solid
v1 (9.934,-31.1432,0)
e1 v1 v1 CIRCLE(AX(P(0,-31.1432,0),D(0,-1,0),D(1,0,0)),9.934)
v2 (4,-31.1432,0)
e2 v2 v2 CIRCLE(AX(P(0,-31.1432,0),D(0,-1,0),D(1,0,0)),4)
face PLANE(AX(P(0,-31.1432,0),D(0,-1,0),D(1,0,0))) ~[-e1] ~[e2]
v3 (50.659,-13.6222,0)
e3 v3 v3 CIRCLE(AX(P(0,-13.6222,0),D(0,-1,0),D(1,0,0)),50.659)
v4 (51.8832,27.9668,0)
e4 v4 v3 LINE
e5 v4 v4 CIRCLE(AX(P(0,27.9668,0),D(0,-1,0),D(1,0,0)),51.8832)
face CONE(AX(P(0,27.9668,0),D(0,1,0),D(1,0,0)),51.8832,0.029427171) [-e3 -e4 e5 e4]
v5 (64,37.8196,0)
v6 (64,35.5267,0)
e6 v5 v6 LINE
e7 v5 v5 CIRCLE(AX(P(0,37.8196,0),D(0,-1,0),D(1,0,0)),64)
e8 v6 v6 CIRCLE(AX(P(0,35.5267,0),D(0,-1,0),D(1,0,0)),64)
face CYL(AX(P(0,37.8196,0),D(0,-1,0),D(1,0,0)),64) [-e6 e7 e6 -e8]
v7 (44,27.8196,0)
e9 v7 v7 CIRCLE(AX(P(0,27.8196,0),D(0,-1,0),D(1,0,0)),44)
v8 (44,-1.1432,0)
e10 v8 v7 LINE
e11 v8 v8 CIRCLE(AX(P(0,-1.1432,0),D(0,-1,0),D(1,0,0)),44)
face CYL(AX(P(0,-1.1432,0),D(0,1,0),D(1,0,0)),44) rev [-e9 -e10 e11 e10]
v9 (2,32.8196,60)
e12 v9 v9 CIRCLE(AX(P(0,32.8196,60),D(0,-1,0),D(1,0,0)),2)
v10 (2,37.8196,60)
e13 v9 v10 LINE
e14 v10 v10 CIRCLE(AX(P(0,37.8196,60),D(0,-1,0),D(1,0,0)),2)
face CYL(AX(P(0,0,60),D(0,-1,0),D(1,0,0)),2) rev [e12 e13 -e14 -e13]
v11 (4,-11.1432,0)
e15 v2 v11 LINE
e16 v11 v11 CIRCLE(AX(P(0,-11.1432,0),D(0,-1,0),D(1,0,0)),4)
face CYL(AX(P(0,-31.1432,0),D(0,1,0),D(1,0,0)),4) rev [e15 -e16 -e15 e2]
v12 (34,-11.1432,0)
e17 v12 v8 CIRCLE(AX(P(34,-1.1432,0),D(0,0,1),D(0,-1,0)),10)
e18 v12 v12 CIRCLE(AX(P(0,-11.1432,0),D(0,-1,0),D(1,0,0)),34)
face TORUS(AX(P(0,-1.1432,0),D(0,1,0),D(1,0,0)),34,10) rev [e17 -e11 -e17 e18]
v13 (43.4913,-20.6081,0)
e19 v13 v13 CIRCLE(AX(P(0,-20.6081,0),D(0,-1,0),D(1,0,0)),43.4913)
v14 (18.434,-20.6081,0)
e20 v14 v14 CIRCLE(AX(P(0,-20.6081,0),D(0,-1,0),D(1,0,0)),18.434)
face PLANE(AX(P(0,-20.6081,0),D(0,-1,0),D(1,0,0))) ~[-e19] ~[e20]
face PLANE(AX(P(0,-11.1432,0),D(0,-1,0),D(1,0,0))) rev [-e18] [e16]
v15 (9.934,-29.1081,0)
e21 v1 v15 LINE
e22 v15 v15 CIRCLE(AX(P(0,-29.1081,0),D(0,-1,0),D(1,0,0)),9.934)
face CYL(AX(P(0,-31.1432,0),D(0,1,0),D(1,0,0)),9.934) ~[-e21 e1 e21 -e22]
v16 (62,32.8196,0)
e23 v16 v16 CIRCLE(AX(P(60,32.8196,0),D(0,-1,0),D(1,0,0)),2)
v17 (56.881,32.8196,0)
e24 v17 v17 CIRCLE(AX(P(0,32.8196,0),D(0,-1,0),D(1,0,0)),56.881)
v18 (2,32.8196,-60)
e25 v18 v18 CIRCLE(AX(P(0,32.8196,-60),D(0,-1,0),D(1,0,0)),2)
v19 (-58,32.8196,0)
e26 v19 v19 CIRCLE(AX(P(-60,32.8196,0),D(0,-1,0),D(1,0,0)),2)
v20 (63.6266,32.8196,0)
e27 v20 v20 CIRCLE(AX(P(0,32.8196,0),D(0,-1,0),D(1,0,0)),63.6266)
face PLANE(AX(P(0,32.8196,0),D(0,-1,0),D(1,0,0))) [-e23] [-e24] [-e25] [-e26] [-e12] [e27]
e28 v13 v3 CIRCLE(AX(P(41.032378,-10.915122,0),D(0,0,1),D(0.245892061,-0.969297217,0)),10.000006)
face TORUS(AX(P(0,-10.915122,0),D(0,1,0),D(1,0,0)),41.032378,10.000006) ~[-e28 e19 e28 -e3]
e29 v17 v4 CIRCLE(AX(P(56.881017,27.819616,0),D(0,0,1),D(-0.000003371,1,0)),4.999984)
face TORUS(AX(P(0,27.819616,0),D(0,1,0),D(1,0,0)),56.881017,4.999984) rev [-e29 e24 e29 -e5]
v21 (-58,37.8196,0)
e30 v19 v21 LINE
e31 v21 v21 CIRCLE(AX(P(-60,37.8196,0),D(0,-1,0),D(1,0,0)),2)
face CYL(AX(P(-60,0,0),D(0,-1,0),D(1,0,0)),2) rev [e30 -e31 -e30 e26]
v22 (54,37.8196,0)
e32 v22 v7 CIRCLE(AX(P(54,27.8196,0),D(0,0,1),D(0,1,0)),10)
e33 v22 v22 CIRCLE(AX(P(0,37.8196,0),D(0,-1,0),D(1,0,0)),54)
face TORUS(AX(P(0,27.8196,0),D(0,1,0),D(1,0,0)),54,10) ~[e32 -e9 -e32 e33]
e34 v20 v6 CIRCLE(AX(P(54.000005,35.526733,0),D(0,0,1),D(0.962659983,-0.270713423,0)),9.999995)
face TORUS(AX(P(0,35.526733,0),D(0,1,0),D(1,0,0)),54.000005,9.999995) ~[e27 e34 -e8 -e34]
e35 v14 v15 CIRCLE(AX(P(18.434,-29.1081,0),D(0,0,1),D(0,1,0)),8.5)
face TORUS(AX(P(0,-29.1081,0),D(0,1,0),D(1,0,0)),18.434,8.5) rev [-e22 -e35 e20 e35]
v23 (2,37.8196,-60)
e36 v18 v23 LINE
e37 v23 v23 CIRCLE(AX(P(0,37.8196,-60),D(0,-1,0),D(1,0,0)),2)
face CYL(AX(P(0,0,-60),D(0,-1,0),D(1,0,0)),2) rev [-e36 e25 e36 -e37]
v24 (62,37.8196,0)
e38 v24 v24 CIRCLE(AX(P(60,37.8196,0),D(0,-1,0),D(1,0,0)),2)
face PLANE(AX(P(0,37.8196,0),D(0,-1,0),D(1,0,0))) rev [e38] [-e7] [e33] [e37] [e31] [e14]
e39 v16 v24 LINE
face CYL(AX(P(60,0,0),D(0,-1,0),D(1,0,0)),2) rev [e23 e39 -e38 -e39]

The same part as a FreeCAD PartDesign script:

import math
import FreeCAD as App
import Part
import Sketcher
Q = App.Units.Quantity

doc = App.newDocument("Part")
body = doc.addObject("PartDesign::Body", "Body")

# Sketch on XY plane
sketch1 = doc.addObject("Sketcher::SketchObject", "Sketch")
body.addObject(sketch1)
sketch1.AttachmentSupport = (doc.XY_Plane, [""])
sketch1.MapMode = "FlatFace"
sketch1.addGeometry([
    Part.LineSegment(App.Vector(4, -11.1432, 0), App.Vector(4, -31.1432, 0)),  # 0
    Part.LineSegment(App.Vector(4, -31.1432, 0), App.Vector(9.934, -31.1432, 0)),  # 1
    Part.LineSegment(App.Vector(9.934, -31.1432, 0), App.Vector(9.934, -29.1081, 0)),  # 2
    Part.ArcOfCircle(Part.Circle(App.Vector(18.434, -29.1081, 0), App.Vector(0, 0, 1), 8.5), math.radians(90), math.radians(180)),  # 3
    Part.LineSegment(App.Vector(18.434, -20.6081, 0), App.Vector(43.4913, -20.6081, 0)),  # 4
    Part.ArcOfCircle(Part.Circle(App.Vector(41.0324, -10.9151, 0), App.Vector(0, 0, 1), 10.000022), math.radians(-75.765596), math.radians(-15.706535)),  # 5
    Part.LineSegment(App.Vector(50.659, -13.6222, 0), App.Vector(51.8832, 27.9668, 0)),  # 6
    Part.ArcOfCircle(Part.Circle(App.Vector(56.881, 27.8196, 0), App.Vector(0, 0, 1), 5), math.radians(90), math.radians(178.312957)),  # 7
    Part.LineSegment(App.Vector(56.881, 32.8196, 0), App.Vector(63.6266, 32.8196, 0)),  # 8
    Part.ArcOfCircle(Part.Circle(App.Vector(54, 35.5267, 0), App.Vector(0, 0, 1), 9.999991), math.radians(-15.706535), math.radians(0)),  # 9
    Part.LineSegment(App.Vector(64, 35.5267, 0), App.Vector(64, 37.8196, 0)),  # 10
    Part.LineSegment(App.Vector(64, 37.8196, 0), App.Vector(54, 37.8196, 0)),  # 11
    Part.ArcOfCircle(Part.Circle(App.Vector(54, 27.8196, 0), App.Vector(0, 0, 1), 10), math.radians(90), math.radians(180)),  # 12
    Part.LineSegment(App.Vector(44, 27.8196, 0), App.Vector(44, -1.1432, 0)),  # 13
    Part.ArcOfCircle(Part.Circle(App.Vector(34, -1.1432, 0), App.Vector(0, 0, 1), 10), math.radians(-90), math.radians(0)),  # 14
    Part.LineSegment(App.Vector(34, -11.1432, 0), App.Vector(4, -11.1432, 0)),  # 15
], False)
sketch1.addConstraint([
    Sketcher.Constraint("Coincident", 0, 2, 1, 1),
    Sketcher.Constraint("Coincident", 1, 2, 2, 1),
    Sketcher.Constraint("Tangent", 2, 2, 3, 2),
    Sketcher.Constraint("Tangent", 3, 1, 4, 1),
    Sketcher.Constraint("Coincident", 4, 2, 5, 1),
    Sketcher.Constraint("Coincident", 5, 2, 6, 1),
    Sketcher.Constraint("Tangent", 6, 2, 7, 2),
    Sketcher.Constraint("Tangent", 7, 1, 8, 1),
    Sketcher.Constraint("Coincident", 8, 2, 9, 1),
    Sketcher.Constraint("Tangent", 9, 2, 10, 1),
    Sketcher.Constraint("Coincident", 10, 2, 11, 1),
    Sketcher.Constraint("Tangent", 11, 2, 12, 1),
    Sketcher.Constraint("Tangent", 12, 2, 13, 1),
    Sketcher.Constraint("Tangent", 13, 2, 14, 2),
    Sketcher.Constraint("Tangent", 14, 1, 15, 1),
    Sketcher.Constraint("Coincident", 15, 2, 0, 1),
    Sketcher.Constraint("Vertical", 0),
    Sketcher.Constraint("Horizontal", 1),
    Sketcher.Constraint("Vertical", 2),
    Sketcher.Constraint("Horizontal", 4),
    Sketcher.Constraint("Horizontal", 8),
    Sketcher.Constraint("Vertical", 10),
    Sketcher.Constraint("Horizontal", 11),
    Sketcher.Constraint("Vertical", 13),
    Sketcher.Constraint("Horizontal", 15),
    Sketcher.Constraint("Equal", 5, 9),
    Sketcher.Constraint("Equal", 9, 12),
    Sketcher.Constraint("Equal", 12, 14),
    Sketcher.Constraint("Horizontal", 7, 3, 12, 3),
    Sketcher.Constraint("Vertical", 9, 3, 12, 3),
    Sketcher.Constraint("Radius", 5, Q("10 mm")),
    Sketcher.Constraint("Radius", 7, Q("5 mm")),
    Sketcher.Constraint("Radius", 3, Q("8.5 mm")),
    Sketcher.Constraint("DistanceX", 15, 2, 15, 1, Q("30 mm")),
    Sketcher.Constraint("DistanceY", 0, 2, 0, 1, Q("20 mm")),
    Sketcher.Constraint("DistanceX", -1, 1, 0, 2, Q("4 mm")),
    Sketcher.Constraint("DistanceX", -1, 1, 5, 2, Q("50.659 mm")),
    Sketcher.Constraint("DistanceX", 1, 1, 1, 2, Q("5.934 mm")),
    Sketcher.Constraint("DistanceY", 2, 1, 2, 2, Q("2.035 mm")),
    Sketcher.Constraint("DistanceY", 10, 1, 10, 2, Q("2.293 mm")),
    Sketcher.Constraint("DistanceY", 14, 3, 9, 3, Q("36.67 mm")),
    Sketcher.Constraint("DistanceY", 6, 2, 9, 3, Q("7.56 mm")),
    Sketcher.Constraint("Distance", 6, Q("41.607 mm")),
    Sketcher.Constraint("DistanceX", 4, 1, 4, 2, Q("25.0573 mm")),
    Sketcher.Constraint("DistanceY", 3, 3, -1, 1, Q("29.108 mm")),
])
revolution = doc.addObject("PartDesign::Revolution", "Revolution")
body.addObject(revolution)
revolution.Profile = sketch1
revolution.ReferenceAxis = (sketch1, ["V_Axis"])
revolution.Angle = 360

# Sketch on XZ plane
sketch2 = doc.addObject("Sketcher::SketchObject", "Sketch001")
body.addObject(sketch2)
sketch2.AttachmentSupport = (doc.XZ_Plane, [""])
sketch2.MapMode = "FlatFace"
sketch2.addGeometry([
    Part.Circle(App.Vector(60, 0, 0), App.Vector(0, 0, 1), 2),
    Part.Circle(App.Vector(0, -60, 0), App.Vector(0, 0, 1), 2),
    Part.Circle(App.Vector(-60, 0, 0), App.Vector(0, 0, 1), 2),
    Part.Circle(App.Vector(0, 60, 0), App.Vector(0, 0, 1), 2),
], False)
sketch2.addConstraint([
    Sketcher.Constraint("Equal", 0, 1),
    Sketcher.Constraint("Equal", 1, 2),
    Sketcher.Constraint("Equal", 2, 3),
    Sketcher.Constraint("Symmetric", 0, 3, 2, 3, -1, 1),
    Sketcher.Constraint("Symmetric", 1, 3, 3, 3, -1, 1),
    Sketcher.Constraint("PointOnObject", 0, 3, -1),
    Sketcher.Constraint("PointOnObject", 1, 3, -2),
    Sketcher.Constraint("Diameter", 0, Q("4 mm")),
    Sketcher.Constraint("DistanceX", -1, 1, 0, 3, Q("60 mm")),
    Sketcher.Constraint("DistanceY", 1, 3, -1, 1, Q("60 mm")),
])
pocket1 = doc.addObject("PartDesign::Pocket", "Pocket")
body.addObject(pocket1)
pocket1.Profile = sketch2
pocket1.Length = 100

doc.recompute()
